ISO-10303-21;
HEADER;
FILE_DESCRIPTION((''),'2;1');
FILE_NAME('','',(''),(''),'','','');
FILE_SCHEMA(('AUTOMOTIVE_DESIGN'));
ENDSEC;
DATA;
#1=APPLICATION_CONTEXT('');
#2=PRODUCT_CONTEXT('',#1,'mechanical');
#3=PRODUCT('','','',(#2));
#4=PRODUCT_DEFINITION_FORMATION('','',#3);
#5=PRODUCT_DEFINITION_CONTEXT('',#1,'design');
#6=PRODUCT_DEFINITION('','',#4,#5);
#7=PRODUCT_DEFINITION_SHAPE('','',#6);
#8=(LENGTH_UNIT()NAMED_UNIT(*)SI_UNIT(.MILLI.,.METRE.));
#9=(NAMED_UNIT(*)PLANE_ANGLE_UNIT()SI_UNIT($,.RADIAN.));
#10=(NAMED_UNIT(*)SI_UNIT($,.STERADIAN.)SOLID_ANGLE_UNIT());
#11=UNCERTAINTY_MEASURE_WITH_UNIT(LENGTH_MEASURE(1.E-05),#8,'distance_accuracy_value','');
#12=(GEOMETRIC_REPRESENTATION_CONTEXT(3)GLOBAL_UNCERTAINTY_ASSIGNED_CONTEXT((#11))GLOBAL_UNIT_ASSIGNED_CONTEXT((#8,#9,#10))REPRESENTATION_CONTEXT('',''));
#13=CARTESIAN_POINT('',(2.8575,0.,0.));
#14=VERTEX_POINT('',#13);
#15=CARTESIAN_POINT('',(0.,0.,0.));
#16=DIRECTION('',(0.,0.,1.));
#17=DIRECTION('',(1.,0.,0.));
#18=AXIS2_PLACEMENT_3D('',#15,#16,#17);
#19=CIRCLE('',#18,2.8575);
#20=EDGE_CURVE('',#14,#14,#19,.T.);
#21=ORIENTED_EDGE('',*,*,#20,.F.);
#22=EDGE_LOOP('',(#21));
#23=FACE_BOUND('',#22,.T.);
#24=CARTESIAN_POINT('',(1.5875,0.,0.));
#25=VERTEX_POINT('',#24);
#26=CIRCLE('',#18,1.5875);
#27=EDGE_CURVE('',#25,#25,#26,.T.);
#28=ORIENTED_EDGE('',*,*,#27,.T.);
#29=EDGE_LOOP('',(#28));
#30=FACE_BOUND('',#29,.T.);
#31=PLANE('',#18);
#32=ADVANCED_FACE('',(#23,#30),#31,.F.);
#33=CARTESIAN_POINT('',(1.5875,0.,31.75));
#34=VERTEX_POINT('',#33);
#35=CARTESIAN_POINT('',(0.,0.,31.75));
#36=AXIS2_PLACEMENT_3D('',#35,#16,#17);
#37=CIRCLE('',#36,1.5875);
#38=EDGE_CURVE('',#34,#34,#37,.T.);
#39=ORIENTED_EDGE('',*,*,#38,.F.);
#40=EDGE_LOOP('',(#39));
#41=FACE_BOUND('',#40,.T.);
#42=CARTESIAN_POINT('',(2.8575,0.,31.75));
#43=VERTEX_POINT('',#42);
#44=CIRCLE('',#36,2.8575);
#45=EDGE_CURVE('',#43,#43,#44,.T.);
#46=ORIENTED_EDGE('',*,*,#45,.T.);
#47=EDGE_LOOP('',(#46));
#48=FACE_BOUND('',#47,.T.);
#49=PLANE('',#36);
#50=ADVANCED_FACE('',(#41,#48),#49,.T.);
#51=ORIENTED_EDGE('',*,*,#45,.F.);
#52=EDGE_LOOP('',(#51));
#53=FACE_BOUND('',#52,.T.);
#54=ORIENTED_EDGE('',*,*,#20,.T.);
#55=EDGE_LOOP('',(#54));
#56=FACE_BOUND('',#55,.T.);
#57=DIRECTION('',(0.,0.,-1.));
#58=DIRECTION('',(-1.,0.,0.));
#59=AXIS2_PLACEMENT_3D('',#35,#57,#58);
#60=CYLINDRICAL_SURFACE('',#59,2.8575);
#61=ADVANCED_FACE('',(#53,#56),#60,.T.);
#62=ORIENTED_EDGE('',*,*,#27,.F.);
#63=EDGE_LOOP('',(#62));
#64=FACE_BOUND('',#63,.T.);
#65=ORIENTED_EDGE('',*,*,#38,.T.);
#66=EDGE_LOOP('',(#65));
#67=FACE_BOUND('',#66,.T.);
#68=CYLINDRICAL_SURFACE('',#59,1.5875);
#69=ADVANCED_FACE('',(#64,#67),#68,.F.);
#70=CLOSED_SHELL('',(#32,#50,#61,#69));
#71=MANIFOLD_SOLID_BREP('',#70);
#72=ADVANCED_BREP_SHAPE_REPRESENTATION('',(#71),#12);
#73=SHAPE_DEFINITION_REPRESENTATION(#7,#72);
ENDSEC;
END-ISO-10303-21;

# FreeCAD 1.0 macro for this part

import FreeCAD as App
import Part
import Sketcher

V = App.Vector
Q = App.Units.Quantity

doc = App.newDocument("Part")
params = doc.addObject("Spreadsheet::Sheet", "Params")
for row, (alias, value) in enumerate([
    ("sketch1_diameter", "0.225 in"),
    ("sketch1_diameter2", "0.125 in"),
    ("pad1_length", "1.25 in"),
], start=1):
    params.set(f"A{row}", alias)
    params.set(f"B{row}", "=" + value)
    params.setAlias(f"B{row}", alias)

body = doc.addObject("PartDesign::Body", "Body")

sketch1 = doc.addObject("Sketcher::SketchObject", "Sketch")
body.addObject(sketch1)
sketch1.AttachmentSupport = (doc.XY_Plane, [""])
sketch1.MapMode = "FlatFace"
sketch1.addGeometry([
    Part.Circle(V(0, 0, 0), V(0, 0, 1), 2.9),
    Part.Circle(V(0, 0, 0), V(0, 0, 1), 1.6),
], False)
sketch1.addConstraint([
    Sketcher.Constraint("Coincident", 0, 3, -1, 1),
    Sketcher.Constraint("Coincident", 1, 3, -1, 1),
    Sketcher.Constraint("Diameter", 0, Q("0.225 in")),
    Sketcher.Constraint("Diameter", 1, Q("0.125 in")),
])
sketch1.setExpression("Constraints[2]", "Params.sketch1_diameter")
sketch1.setExpression("Constraints[3]", "Params.sketch1_diameter2")
pad1 = doc.addObject("PartDesign::Pad", "Pad")
body.addObject(pad1)
pad1.Profile = sketch1
pad1.setExpression("Length", "Params.pad1_length")

doc.recompute()
